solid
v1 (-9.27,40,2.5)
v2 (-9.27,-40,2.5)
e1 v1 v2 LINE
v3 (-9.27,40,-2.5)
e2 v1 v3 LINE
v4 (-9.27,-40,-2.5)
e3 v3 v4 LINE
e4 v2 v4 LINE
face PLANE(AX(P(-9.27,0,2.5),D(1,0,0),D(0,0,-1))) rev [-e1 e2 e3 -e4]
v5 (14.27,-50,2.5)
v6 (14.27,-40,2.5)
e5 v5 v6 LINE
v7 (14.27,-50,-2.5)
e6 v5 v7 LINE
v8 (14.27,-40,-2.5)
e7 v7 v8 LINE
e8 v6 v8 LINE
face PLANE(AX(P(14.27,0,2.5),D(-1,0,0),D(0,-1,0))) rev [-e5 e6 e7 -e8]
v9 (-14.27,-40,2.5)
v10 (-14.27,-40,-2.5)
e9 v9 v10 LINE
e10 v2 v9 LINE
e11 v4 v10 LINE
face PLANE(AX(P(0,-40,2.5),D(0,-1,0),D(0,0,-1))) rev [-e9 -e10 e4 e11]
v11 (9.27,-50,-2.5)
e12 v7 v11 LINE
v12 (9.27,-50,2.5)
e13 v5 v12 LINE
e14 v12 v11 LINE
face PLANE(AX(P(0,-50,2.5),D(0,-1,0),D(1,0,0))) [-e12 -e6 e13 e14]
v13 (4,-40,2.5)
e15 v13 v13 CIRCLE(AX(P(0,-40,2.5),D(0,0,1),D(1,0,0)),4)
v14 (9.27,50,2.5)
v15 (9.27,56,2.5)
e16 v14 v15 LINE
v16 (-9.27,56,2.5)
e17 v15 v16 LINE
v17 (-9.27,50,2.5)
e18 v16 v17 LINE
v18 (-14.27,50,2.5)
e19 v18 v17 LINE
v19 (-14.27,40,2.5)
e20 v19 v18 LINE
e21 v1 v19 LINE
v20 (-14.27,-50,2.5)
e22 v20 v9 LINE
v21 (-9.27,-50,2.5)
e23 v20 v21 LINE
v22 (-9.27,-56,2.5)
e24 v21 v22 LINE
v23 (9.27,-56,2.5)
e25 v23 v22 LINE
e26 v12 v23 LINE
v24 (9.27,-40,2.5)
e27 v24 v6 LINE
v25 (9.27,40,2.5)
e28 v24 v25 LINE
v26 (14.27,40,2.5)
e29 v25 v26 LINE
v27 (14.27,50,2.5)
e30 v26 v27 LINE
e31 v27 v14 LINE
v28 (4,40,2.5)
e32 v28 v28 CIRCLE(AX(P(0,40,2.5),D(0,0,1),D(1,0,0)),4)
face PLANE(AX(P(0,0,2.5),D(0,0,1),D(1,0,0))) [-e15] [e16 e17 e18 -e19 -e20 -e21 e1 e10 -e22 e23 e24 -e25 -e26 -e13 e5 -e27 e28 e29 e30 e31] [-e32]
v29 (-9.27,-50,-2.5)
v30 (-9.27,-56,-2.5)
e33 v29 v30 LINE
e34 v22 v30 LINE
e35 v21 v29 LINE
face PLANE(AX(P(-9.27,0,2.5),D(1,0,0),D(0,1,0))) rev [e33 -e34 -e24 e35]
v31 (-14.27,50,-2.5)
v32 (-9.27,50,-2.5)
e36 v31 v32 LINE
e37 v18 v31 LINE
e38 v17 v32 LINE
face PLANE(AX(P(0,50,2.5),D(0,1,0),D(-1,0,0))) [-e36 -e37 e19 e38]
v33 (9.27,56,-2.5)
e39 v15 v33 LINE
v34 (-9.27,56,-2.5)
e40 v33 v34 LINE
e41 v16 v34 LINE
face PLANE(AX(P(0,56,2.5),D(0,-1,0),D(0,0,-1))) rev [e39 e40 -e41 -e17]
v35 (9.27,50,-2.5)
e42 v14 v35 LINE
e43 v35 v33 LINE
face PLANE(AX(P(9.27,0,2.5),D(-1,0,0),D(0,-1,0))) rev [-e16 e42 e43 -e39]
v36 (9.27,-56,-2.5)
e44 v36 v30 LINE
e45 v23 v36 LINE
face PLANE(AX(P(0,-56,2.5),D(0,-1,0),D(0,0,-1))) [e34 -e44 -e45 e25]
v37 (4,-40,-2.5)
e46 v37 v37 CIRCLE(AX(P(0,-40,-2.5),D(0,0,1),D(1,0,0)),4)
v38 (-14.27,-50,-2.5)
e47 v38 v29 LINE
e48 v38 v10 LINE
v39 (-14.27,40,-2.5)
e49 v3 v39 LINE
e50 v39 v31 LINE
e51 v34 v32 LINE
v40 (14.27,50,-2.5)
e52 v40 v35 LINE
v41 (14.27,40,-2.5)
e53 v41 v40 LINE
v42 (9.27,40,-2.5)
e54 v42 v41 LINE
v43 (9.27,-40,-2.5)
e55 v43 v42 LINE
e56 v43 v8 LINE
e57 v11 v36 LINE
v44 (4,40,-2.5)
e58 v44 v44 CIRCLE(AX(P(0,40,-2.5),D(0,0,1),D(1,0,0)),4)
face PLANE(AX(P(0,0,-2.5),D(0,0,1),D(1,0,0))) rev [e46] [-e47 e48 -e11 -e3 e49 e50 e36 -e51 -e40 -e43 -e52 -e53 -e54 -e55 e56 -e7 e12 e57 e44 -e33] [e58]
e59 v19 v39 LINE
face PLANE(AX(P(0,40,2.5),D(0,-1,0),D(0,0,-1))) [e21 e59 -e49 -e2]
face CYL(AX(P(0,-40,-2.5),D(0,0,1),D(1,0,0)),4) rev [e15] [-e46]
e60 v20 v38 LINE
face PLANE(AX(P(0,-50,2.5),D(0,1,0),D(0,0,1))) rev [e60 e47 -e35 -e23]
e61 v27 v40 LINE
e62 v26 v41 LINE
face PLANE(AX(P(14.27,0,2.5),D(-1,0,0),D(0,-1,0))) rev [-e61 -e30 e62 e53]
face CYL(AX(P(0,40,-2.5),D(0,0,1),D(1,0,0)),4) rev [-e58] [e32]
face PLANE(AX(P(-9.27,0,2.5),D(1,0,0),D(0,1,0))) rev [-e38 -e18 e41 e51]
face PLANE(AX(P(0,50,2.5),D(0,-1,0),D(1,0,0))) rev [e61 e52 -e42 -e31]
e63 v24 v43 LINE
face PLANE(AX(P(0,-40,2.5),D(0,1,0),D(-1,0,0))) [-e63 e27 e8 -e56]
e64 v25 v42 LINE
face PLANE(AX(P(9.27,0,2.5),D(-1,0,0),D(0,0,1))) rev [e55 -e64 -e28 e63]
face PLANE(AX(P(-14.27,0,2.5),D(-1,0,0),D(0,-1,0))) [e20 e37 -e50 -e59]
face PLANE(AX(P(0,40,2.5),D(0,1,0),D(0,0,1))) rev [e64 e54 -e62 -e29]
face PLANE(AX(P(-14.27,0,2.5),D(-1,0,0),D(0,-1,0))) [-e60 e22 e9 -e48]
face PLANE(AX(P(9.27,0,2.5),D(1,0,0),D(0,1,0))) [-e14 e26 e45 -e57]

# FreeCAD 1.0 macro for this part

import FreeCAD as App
import Part
import Sketcher
Q = App.Units.Quantity


def add_polygon(sketch, points):
    """Adds a closed chain of lines whose ends are joined by coincident constraints."""
    first, n = sketch.GeometryCount, len(points)
    for a, b in zip(points, points[1:] + points[:1]):
        sketch.addGeometry(Part.LineSegment(App.Vector(*a, 0), App.Vector(*b, 0)), False)
    for i in range(n):
        sketch.addConstraint(Sketcher.Constraint("Coincident", first + i, 2, first + (i + 1) % n, 1))

doc = App.newDocument("Part")
params = doc.addObject("Spreadsheet::Sheet", "Params")
for row, (alias, value) in enumerate([
    ("sketch1_width", "5 mm"),
    ("sketch1_height", "6 mm"),
    ("sketch1_height2", "10 mm"),
    ("sketch1_height3", "80 mm"),
    ("sketch1_width2", "18.54 mm"),
    ("pad1_length", "5 mm"),
    ("sketch2_diameter", "8 mm"),
    ("pocket1_length", "5 mm"),
], start=1):
    params.set(f"A{row}", alias)
    params.set(f"B{row}", "=" + value)
    params.setAlias(f"B{row}", alias)

body = doc.addObject("PartDesign::Body", "Body")

# Sketch on XY plane
sketch1 = body.newObject("Sketcher::SketchObject", "Sketch")
sketch1.AttachmentSupport = (doc.getObject("XY_Plane"), [""])
sketch1.MapMode = "FlatFace"
add_polygon(sketch1, [(-9, -56), (9, -56), (9, -50), (14, -50), (14, -40), (9, -40), (9, 40), (14, 40), (14, 50), (9, 50), (9, 56), (-9, 56), (-9, 50), (-14, 50), (-14, 40), (-9, 40), (-9, -40), (-14, -40), (-14, -50), (-9, -50)])  # lines 0-19
sketch1.addConstraint(Sketcher.Constraint("Horizontal", 0))
sketch1.addConstraint(Sketcher.Constraint("Vertical", 1))
sketch1.addConstraint(Sketcher.Constraint("Horizontal", 2))
sketch1.addConstraint(Sketcher.Constraint("Vertical", 3))
sketch1.addConstraint(Sketcher.Constraint("Horizontal", 4))
sketch1.addConstraint(Sketcher.Constraint("Vertical", 5))
sketch1.addConstraint(Sketcher.Constraint("Horizontal", 6))
sketch1.addConstraint(Sketcher.Constraint("Vertical", 7))
sketch1.addConstraint(Sketcher.Constraint("Horizontal", 8))
sketch1.addConstraint(Sketcher.Constraint("Vertical", 9))
sketch1.addConstraint(Sketcher.Constraint("Horizontal", 10))
sketch1.addConstraint(Sketcher.Constraint("Vertical", 11))
sketch1.addConstraint(Sketcher.Constraint("Horizontal", 12))
sketch1.addConstraint(Sketcher.Constraint("Vertical", 13))
sketch1.addConstraint(Sketcher.Constraint("Horizontal", 14))
sketch1.addConstraint(Sketcher.Constraint("Vertical", 15))
sketch1.addConstraint(Sketcher.Constraint("Horizontal", 16))
sketch1.addConstraint(Sketcher.Constraint("Vertical", 17))
sketch1.addConstraint(Sketcher.Constraint("Horizontal", 18))
sketch1.addConstraint(Sketcher.Constraint("Vertical", 19))
sketch1.addConstraint(Sketcher.Constraint("Symmetric", 0, 2, 10, 2, -1, 1))
sketch1.addConstraint(Sketcher.Constraint("Symmetric", 2, 2, 12, 2, -1, 1))
sketch1.addConstraint(Sketcher.Constraint("Symmetric", 4, 2, 14, 2, -1, 1))
sketch1.addConstraint(Sketcher.Constraint("Symmetric", 6, 2, 16, 2, -1, 1))
sketch1.addConstraint(Sketcher.Constraint("Symmetric", 8, 2, 18, 2, -1, 1))
sketch1.addConstraint(Sketcher.Constraint("Symmetric", 8, 2, 11, 2, -2))
sketch1.addConstraint(Sketcher.Constraint("Symmetric", 6, 2, 13, 2, -2))
sketch1.addConstraint(Sketcher.Constraint("Vertical", 1, 2, 4, 2))
sketch1.addConstraint(Sketcher.Constraint("DistanceX", 2, 1, 2, 2, Q("5 mm")))
sketch1.addConstraint(Sketcher.Constraint("DistanceY", 1, 1, 1, 2, Q("6 mm")))
sketch1.addConstraint(Sketcher.Constraint("DistanceY", 3, 1, 3, 2, Q("10 mm")))
sketch1.addConstraint(Sketcher.Constraint("DistanceY", 5, 1, 5, 2, Q("80 mm")))
sketch1.addConstraint(Sketcher.Constraint("DistanceX", 0, 1, 0, 2, Q("18.54 mm")))
sketch1.setExpression("Constraints[48]", "Params.sketch1_width")
sketch1.setExpression("Constraints[49]", "Params.sketch1_height")
sketch1.setExpression("Constraints[50]", "Params.sketch1_height2")
sketch1.setExpression("Constraints[51]", "Params.sketch1_height3")
sketch1.setExpression("Constraints[52]", "Params.sketch1_width2")
pad1 = body.newObject("PartDesign::Pad", "Pad")
pad1.Profile = sketch1
pad1.setExpression("Length", "Params.pad1_length")
pad1.Midplane = True

# Sketch on XY plane
sketch2 = body.newObject("Sketcher::SketchObject", "Sketch001")
sketch2.AttachmentSupport = (doc.getObject("XY_Plane"), [""])
sketch2.MapMode = "FlatFace"
sketch2.AttachmentOffset = App.Placement(App.Vector(0, 0, 2.5), App.Rotation())
sketch2.addGeometry(Part.Circle(App.Vector(0, 40, 0), App.Vector(0, 0, 1), 4), False)
sketch2.addGeometry(Part.Circle(App.Vector(0, -40, 0), App.Vector(0, 0, 1), 4), False)
sketch2.addConstraint(Sketcher.Constraint("Equal", 0, 1))
sketch2.addConstraint(Sketcher.Constraint("Symmetric", 0, 3, 1, 3, -1, 1))
sketch2.addConstraint(Sketcher.Constraint("PointOnObject", 0, 3, -2))
sketch2.addConstraint(Sketcher.Constraint("Diameter", 0, Q("8 mm")))
sketch2.addConstraint(Sketcher.Constraint("DistanceY", -1, 1, 0, 3, Q("40 mm")))
sketch2.setExpression("Constraints[3]", "Params.sketch2_diameter")
pocket1 = body.newObject("PartDesign::Pocket", "Pocket")
pocket1.Profile = sketch2
pocket1.setExpression("Length", "Params.pocket1_length")

doc.recompute()
